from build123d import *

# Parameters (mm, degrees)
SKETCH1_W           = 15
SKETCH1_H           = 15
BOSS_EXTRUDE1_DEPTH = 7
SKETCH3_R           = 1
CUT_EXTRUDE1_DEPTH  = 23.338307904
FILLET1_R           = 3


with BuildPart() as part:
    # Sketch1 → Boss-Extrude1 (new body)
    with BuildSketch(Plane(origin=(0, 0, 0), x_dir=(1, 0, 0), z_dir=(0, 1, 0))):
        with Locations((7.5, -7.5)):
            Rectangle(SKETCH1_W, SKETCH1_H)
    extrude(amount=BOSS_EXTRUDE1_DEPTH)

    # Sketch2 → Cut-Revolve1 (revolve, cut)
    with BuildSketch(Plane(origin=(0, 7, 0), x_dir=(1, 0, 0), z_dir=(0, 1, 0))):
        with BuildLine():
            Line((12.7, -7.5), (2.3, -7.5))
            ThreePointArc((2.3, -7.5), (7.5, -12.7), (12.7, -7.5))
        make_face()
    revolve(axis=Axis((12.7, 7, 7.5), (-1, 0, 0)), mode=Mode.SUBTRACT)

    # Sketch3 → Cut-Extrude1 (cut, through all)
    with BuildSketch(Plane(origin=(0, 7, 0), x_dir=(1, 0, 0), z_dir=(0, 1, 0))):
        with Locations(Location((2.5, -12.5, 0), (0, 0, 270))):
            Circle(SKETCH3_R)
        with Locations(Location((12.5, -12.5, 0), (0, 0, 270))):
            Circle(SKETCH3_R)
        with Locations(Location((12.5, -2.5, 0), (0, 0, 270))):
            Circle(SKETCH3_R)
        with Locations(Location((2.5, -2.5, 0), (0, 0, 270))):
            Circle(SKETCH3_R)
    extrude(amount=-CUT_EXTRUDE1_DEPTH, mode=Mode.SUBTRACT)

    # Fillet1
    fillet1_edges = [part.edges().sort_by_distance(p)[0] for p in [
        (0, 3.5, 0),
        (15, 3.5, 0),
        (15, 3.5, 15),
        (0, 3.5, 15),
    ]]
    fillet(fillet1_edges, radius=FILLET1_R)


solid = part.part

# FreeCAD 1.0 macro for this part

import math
import FreeCAD as App
import Part
import Sketcher
Q = App.Units.Quantity


def edges_at(feature, points):
    """Names of the edges that pass closest to the given points."""
    edges = feature.Shape.Edges
    near = lambda p: min(range(len(edges)), key=lambda i: edges[i].distToShape(Part.Vertex(*p))[0])
    return sorted({f"Edge{near(p) + 1}" for p in points})


def add_polygon(sketch, points):
    """Adds a closed chain of lines whose ends are joined by coincident constraints."""
    first, n = sketch.GeometryCount, len(points)
    for a, b in zip(points, points[1:] + points[:1]):
        sketch.addGeometry(Part.LineSegment(App.Vector(*a, 0), App.Vector(*b, 0)), False)
    for i in range(n):
        sketch.addConstraint(Sketcher.Constraint("Coincident", first + i, 2, first + (i + 1) % n, 1))

doc = App.newDocument("Part")
body = doc.addObject("PartDesign::Body", "Body")

sketch1 = body.newObject("Sketcher::SketchObject", "Sketch")
sketch1.AttachmentSupport = (doc.getObject("XZ_Plane"), [""])
sketch1.MapMode = "FlatFace"
add_polygon(sketch1, [(0, 0), (0, 15), (15, 15), (15, 0)])
sketch1.addConstraint(Sketcher.Constraint("Vertical", 0))
sketch1.addConstraint(Sketcher.Constraint("Horizontal", 1))
sketch1.addConstraint(Sketcher.Constraint("Vertical", 2))
sketch1.addConstraint(Sketcher.Constraint("Horizontal", 3))
sketch1.addConstraint(Sketcher.Constraint("Coincident", 3, 2, -1, 1))
sketch1.addConstraint(Sketcher.Constraint("Equal", 3, 0))
sketch1.addConstraint(Sketcher.Constraint("DistanceX", 1, 1, 1, 2, Q("15 mm")))
pad1 = body.newObject("PartDesign::Pad", "Pad")
pad1.Profile = sketch1
pad1.Length = 7
pad1.Reversed = True

sketch2 = body.newObject("Sketcher::SketchObject", "Sketch001")
sketch2.AttachmentSupport = (doc.getObject("XZ_Plane"), [""])
sketch2.MapMode = "FlatFace"
sketch2.AttachmentOffset = App.Placement(App.Vector(0, 0, -7), App.Rotation())
sketch2.addGeometry(Part.LineSegment(App.Vector(13, 8, 0), App.Vector(2, 8, 0)), False)
sketch2.addGeometry(Part.ArcOfCircle(Part.Circle(App.Vector(8, 8, 0), App.Vector(0, 0, 1), 5), math.radians(0), math.radians(180)), False)
sketch2.addGeometry(Part.LineSegment(App.Vector(13, 8, 0), App.Vector(2, 8, 0)), True)
sketch2.addConstraint(Sketcher.Constraint("Coincident", 0, 1, 1, 1))
sketch2.addConstraint(Sketcher.Constraint("Coincident", 1, 2, 0, 2))
sketch2.addConstraint(Sketcher.Constraint("Horizontal", 0))
sketch2.addConstraint(Sketcher.Constraint("Horizontal", 2))
sketch2.addConstraint(Sketcher.Constraint("Coincident", 2, 1, 0, 1))
sketch2.addConstraint(Sketcher.Constraint("Horizontal", 1, 3, 0, 1))
sketch2.addConstraint(Sketcher.Constraint("Equal", 0, 2))
sketch2.addConstraint(Sketcher.Constraint("Radius", 1, Q("5.2 mm")))
sketch2.addConstraint(Sketcher.Constraint("DistanceX", -1, 1, 1, 3, Q("7.5 mm")))
sketch2.addConstraint(Sketcher.Constraint("DistanceY", -1, 1, 1, 3, Q("7.5 mm")))
groove = body.newObject("PartDesign::Groove", "Groove")
groove.Profile = sketch2
groove.ReferenceAxis = (sketch2, ["Axis0"])
groove.Angle = 360

sketch3 = body.newObject("Sketcher::SketchObject", "Sketch002")
sketch3.AttachmentSupport = (doc.getObject("XZ_Plane"), [""])
sketch3.MapMode = "FlatFace"
sketch3.AttachmentOffset = App.Placement(App.Vector(0, 0, -7), App.Rotation())
sketch3.addGeometry(Part.Circle(App.Vector(2.5, 12.5, 0), App.Vector(0, 0, 1), 1), False)
sketch3.addGeometry(Part.Circle(App.Vector(12.5, 12.5, 0), App.Vector(0, 0, 1), 1), False)
sketch3.addGeometry(Part.Circle(App.Vector(12.5, 2.5, 0), App.Vector(0, 0, 1), 1), False)
sketch3.addGeometry(Part.Circle(App.Vector(2.5, 2.5, 0), App.Vector(0, 0, 1), 1), False)
sketch3.addConstraint(Sketcher.Constraint("Equal", 0, 1))
sketch3.addConstraint(Sketcher.Constraint("Equal", 1, 2))
sketch3.addConstraint(Sketcher.Constraint("Equal", 2, 3))
sketch3.addConstraint(Sketcher.Constraint("Horizontal", 0, 3, 1, 3))
sketch3.addConstraint(Sketcher.Constraint("Horizontal", 2, 3, 3, 3))
sketch3.addConstraint(Sketcher.Constraint("Vertical", 1, 3, 2, 3))
sketch3.addConstraint(Sketcher.Constraint("Vertical", 0, 3, 3, 3))
sketch3.addConstraint(Sketcher.Constraint("Diameter", 0, Q("2 mm")))
sketch3.addConstraint(Sketcher.Constraint("DistanceX", 0, 3, 1, 3, Q("10 mm")))
sketch3.addConstraint(Sketcher.Constraint("DistanceY", 2, 3, 1, 3, Q("10 mm")))
sketch3.addConstraint(Sketcher.Constraint("DistanceX", -1, 1, 0, 3, Q("2.5 mm")))
sketch3.addConstraint(Sketcher.Constraint("DistanceY", -1, 1, 0, 3, Q("12.5 mm")))
pocket1 = body.newObject("PartDesign::Pocket", "Pocket")
pocket1.Profile = sketch3
pocket1.Type = "ThroughAll"
pocket1.Reversed = True
doc.recompute()

fillet = body.newObject("PartDesign::Fillet", "Fillet")
fillet.Base = (pocket1, edges_at(pocket1, [
    (0, 3.5, 0),
    (15, 3.5, 0),
    (15, 3.5, 15),
    (0, 3.5, 15),
]))
fillet.Radius = 3

doc.recompute()
